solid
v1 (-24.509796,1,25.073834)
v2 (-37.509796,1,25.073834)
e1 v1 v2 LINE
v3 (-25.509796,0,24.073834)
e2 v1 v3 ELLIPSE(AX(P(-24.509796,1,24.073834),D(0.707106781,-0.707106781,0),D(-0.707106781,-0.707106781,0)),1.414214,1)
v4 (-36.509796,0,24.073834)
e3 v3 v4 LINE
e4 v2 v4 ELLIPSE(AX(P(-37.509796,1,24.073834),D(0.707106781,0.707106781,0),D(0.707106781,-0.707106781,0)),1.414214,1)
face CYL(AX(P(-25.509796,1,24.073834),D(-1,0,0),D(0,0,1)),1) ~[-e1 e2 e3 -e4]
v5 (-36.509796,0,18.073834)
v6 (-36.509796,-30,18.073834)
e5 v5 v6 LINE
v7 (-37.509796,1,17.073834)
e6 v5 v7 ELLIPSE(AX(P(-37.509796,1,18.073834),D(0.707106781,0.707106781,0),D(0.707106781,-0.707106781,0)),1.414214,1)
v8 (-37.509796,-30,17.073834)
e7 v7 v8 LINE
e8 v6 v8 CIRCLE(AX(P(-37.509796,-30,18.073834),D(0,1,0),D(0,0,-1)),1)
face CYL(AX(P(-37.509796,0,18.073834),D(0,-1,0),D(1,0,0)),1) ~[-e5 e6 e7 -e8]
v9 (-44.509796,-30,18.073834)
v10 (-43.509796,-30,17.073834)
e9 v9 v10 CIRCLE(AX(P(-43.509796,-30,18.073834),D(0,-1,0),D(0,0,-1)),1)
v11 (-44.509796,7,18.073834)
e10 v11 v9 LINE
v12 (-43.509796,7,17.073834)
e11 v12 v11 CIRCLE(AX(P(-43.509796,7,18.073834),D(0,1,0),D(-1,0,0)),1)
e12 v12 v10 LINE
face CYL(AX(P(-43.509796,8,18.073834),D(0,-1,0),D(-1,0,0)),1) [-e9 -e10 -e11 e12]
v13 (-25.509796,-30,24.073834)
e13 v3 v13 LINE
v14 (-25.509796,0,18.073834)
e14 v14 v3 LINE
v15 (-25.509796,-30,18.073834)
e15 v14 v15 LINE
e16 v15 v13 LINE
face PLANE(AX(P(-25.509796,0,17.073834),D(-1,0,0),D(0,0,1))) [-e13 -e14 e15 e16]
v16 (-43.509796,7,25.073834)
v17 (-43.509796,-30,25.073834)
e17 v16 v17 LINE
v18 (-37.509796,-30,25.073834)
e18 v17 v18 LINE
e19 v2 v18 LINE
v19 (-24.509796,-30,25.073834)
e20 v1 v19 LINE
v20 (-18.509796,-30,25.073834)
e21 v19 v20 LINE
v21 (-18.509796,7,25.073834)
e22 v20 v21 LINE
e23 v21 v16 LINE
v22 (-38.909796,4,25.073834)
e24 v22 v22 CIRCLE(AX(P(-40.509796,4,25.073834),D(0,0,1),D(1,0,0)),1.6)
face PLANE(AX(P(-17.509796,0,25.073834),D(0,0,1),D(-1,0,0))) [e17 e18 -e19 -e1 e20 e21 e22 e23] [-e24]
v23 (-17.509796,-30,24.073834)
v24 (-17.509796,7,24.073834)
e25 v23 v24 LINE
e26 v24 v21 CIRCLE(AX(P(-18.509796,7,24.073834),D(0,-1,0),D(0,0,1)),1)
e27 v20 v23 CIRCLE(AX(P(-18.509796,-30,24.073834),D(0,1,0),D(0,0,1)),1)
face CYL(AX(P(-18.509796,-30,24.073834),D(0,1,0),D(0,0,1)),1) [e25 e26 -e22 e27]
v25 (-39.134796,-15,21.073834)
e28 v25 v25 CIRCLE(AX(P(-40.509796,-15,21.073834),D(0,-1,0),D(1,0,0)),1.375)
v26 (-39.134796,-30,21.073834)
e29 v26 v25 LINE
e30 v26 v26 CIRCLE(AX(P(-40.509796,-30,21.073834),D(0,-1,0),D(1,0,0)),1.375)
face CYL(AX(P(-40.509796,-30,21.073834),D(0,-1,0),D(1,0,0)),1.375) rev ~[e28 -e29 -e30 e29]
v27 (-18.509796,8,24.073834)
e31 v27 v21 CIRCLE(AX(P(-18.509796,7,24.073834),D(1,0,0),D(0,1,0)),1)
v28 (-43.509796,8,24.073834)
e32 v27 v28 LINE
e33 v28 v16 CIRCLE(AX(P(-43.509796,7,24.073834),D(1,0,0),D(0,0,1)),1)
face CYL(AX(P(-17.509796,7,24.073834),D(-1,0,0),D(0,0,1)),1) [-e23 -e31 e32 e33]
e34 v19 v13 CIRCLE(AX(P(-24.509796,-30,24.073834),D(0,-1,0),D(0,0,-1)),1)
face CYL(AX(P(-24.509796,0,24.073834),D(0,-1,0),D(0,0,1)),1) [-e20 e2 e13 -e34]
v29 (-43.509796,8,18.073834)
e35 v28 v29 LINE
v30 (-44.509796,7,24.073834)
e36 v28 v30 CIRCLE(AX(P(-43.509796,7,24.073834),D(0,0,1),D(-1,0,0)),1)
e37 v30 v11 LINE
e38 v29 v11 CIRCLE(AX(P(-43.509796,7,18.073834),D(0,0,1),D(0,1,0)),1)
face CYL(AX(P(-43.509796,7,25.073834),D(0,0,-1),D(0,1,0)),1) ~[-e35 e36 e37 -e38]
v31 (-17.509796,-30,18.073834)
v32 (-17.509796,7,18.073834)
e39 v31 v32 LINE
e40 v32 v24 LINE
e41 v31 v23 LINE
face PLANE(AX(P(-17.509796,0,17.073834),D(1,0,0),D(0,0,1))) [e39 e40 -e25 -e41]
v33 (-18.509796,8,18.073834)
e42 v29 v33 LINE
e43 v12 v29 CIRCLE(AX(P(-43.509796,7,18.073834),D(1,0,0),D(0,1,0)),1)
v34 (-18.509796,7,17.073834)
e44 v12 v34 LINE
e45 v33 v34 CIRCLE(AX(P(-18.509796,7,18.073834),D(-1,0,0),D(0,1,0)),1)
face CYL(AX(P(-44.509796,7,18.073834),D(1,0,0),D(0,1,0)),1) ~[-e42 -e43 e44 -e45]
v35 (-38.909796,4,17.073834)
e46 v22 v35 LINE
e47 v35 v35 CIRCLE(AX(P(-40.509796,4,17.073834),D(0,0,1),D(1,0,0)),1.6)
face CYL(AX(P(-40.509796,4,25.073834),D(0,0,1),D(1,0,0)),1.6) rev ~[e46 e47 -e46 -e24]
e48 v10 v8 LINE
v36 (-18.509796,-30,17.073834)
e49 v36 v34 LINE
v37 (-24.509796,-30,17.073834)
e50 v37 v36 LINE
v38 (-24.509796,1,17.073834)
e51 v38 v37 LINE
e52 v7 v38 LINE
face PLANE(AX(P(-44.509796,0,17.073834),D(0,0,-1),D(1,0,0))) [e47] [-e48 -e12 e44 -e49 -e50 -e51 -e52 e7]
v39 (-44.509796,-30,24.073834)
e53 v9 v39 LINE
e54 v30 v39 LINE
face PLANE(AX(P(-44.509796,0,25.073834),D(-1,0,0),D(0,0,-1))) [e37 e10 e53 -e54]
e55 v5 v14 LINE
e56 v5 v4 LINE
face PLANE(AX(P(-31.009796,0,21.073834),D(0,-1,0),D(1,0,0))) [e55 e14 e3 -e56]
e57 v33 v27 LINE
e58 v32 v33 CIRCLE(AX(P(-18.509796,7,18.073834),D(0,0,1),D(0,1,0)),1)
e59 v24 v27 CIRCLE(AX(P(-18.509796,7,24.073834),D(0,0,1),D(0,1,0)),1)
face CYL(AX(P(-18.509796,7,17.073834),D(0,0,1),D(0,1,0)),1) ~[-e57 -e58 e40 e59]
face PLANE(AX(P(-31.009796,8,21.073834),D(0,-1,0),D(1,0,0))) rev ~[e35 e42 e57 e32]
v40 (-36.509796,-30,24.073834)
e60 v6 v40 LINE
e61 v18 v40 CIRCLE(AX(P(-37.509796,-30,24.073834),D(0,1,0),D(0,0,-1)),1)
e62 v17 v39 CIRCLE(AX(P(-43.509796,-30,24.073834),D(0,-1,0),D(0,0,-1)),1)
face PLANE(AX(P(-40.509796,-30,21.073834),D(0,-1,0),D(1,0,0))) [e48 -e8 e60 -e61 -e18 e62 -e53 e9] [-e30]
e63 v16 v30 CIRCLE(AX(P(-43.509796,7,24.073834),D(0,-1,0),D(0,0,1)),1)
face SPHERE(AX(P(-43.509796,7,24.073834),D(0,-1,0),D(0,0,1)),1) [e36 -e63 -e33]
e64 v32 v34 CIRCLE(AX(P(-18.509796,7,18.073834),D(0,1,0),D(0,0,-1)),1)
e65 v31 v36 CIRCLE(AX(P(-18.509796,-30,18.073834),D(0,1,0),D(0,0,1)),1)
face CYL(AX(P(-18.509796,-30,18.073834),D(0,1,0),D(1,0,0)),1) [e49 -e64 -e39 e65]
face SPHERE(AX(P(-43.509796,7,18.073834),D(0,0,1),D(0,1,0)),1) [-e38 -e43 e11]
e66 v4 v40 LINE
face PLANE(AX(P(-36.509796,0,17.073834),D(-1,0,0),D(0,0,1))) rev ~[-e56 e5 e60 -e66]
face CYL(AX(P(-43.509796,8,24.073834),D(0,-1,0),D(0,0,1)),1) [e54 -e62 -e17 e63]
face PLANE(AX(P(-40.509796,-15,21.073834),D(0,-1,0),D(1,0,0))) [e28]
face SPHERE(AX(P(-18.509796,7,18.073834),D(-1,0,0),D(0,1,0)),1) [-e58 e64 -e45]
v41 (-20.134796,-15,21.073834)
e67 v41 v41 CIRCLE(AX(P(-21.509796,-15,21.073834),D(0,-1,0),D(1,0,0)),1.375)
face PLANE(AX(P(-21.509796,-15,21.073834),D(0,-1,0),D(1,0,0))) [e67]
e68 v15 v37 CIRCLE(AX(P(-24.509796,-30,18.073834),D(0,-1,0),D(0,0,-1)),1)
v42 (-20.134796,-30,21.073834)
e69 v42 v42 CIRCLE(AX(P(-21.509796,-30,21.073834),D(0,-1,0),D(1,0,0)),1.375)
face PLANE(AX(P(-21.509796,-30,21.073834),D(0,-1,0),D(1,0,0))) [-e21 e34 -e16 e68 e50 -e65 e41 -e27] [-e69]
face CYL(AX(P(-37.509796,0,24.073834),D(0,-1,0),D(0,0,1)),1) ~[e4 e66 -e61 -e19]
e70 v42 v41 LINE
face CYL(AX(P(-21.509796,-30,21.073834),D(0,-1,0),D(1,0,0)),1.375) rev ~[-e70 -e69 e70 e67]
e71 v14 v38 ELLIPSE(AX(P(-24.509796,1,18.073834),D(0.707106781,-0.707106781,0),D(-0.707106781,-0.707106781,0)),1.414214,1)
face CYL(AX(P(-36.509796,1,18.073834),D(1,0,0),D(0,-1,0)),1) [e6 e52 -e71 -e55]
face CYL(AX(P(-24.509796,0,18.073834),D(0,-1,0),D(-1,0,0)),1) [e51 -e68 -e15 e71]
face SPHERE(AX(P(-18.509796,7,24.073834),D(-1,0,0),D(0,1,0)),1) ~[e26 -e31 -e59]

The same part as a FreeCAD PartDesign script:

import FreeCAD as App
import Part
import Sketcher
Q = App.Units.Quantity


def edges_at(feature, points):
    """Names of the edges that pass closest to the given points."""
    edges = feature.Shape.Edges
    near = lambda p: min(range(len(edges)), key=lambda i: edges[i].distToShape(Part.Vertex(*p))[0])
    return sorted({f"Edge{near(p) + 1}" for p in points})


def add_polygon(sketch, points):
    """Adds a closed chain of lines whose ends are joined by coincident constraints."""
    first, n = sketch.GeometryCount, len(points)
    for a, b in zip(points, points[1:] + points[:1]):
        sketch.addGeometry(Part.LineSegment(App.Vector(*a, 0), App.Vector(*b, 0)), False)
    for i in range(n):
        sketch.addConstraint(Sketcher.Constraint("Coincident", first + i, 2, first + (i + 1) % n, 1))

doc = App.newDocument("Part")
body = doc.addObject("PartDesign::Body", "Body")
body.AllowCompound = True

# Sketch on XZ plane
sketch1 = body.newObject("Sketcher::SketchObject", "Sketch")
sketch1.AttachmentSupport = (doc.getObject("XZ_Plane"), [""])
sketch1.MapMode = "FlatFace"
add_polygon(sketch1, [(-45, 25), (-45, 17), (-37, 17), (-37, 25)])  # lines 0-3
add_polygon(sketch1, [(-26, 25), (-26, 17), (-18, 17), (-18, 25)])  # lines 4-7
sketch1.addConstraint(Sketcher.Constraint("Vertical", 0))
sketch1.addConstraint(Sketcher.Constraint("Horizontal", 1))
sketch1.addConstraint(Sketcher.Constraint("Vertical", 2))
sketch1.addConstraint(Sketcher.Constraint("Horizontal", 3))
sketch1.addConstraint(Sketcher.Constraint("Vertical", 4))
sketch1.addConstraint(Sketcher.Constraint("Horizontal", 5))
sketch1.addConstraint(Sketcher.Constraint("Vertical", 6))
sketch1.addConstraint(Sketcher.Constraint("Horizontal", 7))
sketch1.addConstraint(Sketcher.Constraint("Horizontal", 1, 2, 4, 2))
sketch1.addConstraint(Sketcher.Constraint("Horizontal", 3, 2, 6, 2))
sketch1.addConstraint(Sketcher.Constraint("Equal", 3, 5))
sketch1.addConstraint(Sketcher.Constraint("Equal", 7, 0))
sketch1.addConstraint(Sketcher.Constraint("DistanceX", 1, 1, 1, 2, Q("8 mm")))
sketch1.addConstraint(Sketcher.Constraint("DistanceX", 1, 2, 4, 2, Q("11 mm")))
sketch1.addConstraint(Sketcher.Constraint("DistanceX", 0, 2, -1, 1, Q("44.509796 mm")))
sketch1.addConstraint(Sketcher.Constraint("DistanceY", -1, 1, 0, 2, Q("17.073834 mm")))
pad1 = body.newObject("PartDesign::Pad", "Pad")
pad1.Profile = sketch1
pad1.Length = 30
body2 = doc.addObject("PartDesign::Body", "Body001")

# Sketch on XZ plane
sketch2 = body2.newObject("Sketcher::SketchObject", "Sketch001")
sketch2.AttachmentSupport = (doc.getObject("XZ_Plane001"), [""])
sketch2.MapMode = "FlatFace"
add_polygon(sketch2, [(-18, 25), (-45, 25), (-45, 17), (-18, 17)])  # lines 0-3
sketch2.addConstraint(Sketcher.Constraint("Horizontal", 0))
sketch2.addConstraint(Sketcher.Constraint("Vertical", 1))
sketch2.addConstraint(Sketcher.Constraint("Horizontal", 2))
sketch2.addConstraint(Sketcher.Constraint("Vertical", 3))
sketch2.addConstraint(Sketcher.Constraint("DistanceX", 0, 2, 0, 1, Q("27 mm")))
sketch2.addConstraint(Sketcher.Constraint("DistanceY", 1, 2, 1, 1, Q("8 mm")))
sketch2.addConstraint(Sketcher.Constraint("DistanceX", 0, 2, -1, 1, Q("44.509796 mm")))
sketch2.addConstraint(Sketcher.Constraint("DistanceY", -1, 1, 0, 2, Q("25.073834 mm")))
pad2 = body2.newObject("PartDesign::Pad", "Pad001")
pad2.Profile = sketch2
pad2.Length = 8
pad2.Reversed = True

# Sketch on XY plane
sketch3 = body2.newObject("Sketcher::SketchObject", "Sketch002")
sketch3.AttachmentSupport = (doc.getObject("XY_Plane001"), [""])
sketch3.MapMode = "FlatFace"
sketch3.AttachmentOffset = App.Placement(App.Vector(0, 0, 25.073834), App.Rotation())
sketch3.addGeometry(Part.Circle(App.Vector(-40.5, 4, 0), App.Vector(0, 0, 1), 1.6), False)
sketch3.addConstraint(Sketcher.Constraint("Diameter", 0, Q("3.2 mm")))
sketch3.addConstraint(Sketcher.Constraint("DistanceY", -1, 1, 0, 3, Q("4 mm")))
sketch3.addConstraint(Sketcher.Constraint("DistanceX", 0, 3, -1, 1, Q("40.509796 mm")))
pocket1 = body2.newObject("PartDesign::Pocket", "Pocket")
pocket1.Profile = sketch3
pocket1.Type = "ThroughAll"
doc.recompute()

boolean = body.newObject("PartDesign::Boolean", "Boolean")
boolean.Type = "Fuse"
boolean.addObjects([body2])

# Sketch on XZ plane
sketch4 = body.newObject("Sketcher::SketchObject", "Sketch003")
sketch4.AttachmentSupport = (doc.getObject("XZ_Plane"), [""])
sketch4.MapMode = "FlatFace"
sketch4.AttachmentOffset = App.Placement(App.Vector(0, 0, 30), App.Rotation())
sketch4.addGeometry(Part.Circle(App.Vector(-40.5, 21.1, 0), App.Vector(0, 0, 1), 1.4), False)
sketch4.addGeometry(Part.Circle(App.Vector(-21.5, 21.1, 0), App.Vector(0, 0, 1), 1.4), False)
sketch4.addConstraint(Sketcher.Constraint("Equal", 0, 1))
sketch4.addConstraint(Sketcher.Constraint("Horizontal", 0, 3, 1, 3))
sketch4.addConstraint(Sketcher.Constraint("Diameter", 0, Q("2.75 mm")))
sketch4.addConstraint(Sketcher.Constraint("DistanceX", 0, 3, 1, 3, Q("19 mm")))
sketch4.addConstraint(Sketcher.Constraint("DistanceX", 0, 3, -1, 1, Q("40.509796 mm")))
sketch4.addConstraint(Sketcher.Constraint("DistanceY", -1, 1, 0, 3, Q("21.073834 mm")))
pocket2 = body.newObject("PartDesign::Pocket", "Pocket001")
pocket2.Profile = sketch4
pocket2.Length = 15
doc.recompute()

fillet = body.newObject("PartDesign::Fillet", "Fillet")
fillet.Base = (pocket2, edges_at(pocket2, [
    (-44.51, -11, 25.074),
    (-36.51, -15, 25.074),
    (-31.01, 0, 25.074),
    (-31.01, 8, 25.074),
    (-44.51, 8, 21.074),
    (-31.01, 8, 17.074),
    (-17.51, 8, 21.074),
    (-25.51, -15, 25.074),
    (-17.51, -11, 25.074),
    (-17.51, -11, 17.074),
    (-25.51, -15, 17.074),
    (-31.01, 0, 17.074),
    (-36.51, -15, 17.074),
    (-44.51, -11, 17.074),
]))
fillet.Radius = 1

doc.recompute()
